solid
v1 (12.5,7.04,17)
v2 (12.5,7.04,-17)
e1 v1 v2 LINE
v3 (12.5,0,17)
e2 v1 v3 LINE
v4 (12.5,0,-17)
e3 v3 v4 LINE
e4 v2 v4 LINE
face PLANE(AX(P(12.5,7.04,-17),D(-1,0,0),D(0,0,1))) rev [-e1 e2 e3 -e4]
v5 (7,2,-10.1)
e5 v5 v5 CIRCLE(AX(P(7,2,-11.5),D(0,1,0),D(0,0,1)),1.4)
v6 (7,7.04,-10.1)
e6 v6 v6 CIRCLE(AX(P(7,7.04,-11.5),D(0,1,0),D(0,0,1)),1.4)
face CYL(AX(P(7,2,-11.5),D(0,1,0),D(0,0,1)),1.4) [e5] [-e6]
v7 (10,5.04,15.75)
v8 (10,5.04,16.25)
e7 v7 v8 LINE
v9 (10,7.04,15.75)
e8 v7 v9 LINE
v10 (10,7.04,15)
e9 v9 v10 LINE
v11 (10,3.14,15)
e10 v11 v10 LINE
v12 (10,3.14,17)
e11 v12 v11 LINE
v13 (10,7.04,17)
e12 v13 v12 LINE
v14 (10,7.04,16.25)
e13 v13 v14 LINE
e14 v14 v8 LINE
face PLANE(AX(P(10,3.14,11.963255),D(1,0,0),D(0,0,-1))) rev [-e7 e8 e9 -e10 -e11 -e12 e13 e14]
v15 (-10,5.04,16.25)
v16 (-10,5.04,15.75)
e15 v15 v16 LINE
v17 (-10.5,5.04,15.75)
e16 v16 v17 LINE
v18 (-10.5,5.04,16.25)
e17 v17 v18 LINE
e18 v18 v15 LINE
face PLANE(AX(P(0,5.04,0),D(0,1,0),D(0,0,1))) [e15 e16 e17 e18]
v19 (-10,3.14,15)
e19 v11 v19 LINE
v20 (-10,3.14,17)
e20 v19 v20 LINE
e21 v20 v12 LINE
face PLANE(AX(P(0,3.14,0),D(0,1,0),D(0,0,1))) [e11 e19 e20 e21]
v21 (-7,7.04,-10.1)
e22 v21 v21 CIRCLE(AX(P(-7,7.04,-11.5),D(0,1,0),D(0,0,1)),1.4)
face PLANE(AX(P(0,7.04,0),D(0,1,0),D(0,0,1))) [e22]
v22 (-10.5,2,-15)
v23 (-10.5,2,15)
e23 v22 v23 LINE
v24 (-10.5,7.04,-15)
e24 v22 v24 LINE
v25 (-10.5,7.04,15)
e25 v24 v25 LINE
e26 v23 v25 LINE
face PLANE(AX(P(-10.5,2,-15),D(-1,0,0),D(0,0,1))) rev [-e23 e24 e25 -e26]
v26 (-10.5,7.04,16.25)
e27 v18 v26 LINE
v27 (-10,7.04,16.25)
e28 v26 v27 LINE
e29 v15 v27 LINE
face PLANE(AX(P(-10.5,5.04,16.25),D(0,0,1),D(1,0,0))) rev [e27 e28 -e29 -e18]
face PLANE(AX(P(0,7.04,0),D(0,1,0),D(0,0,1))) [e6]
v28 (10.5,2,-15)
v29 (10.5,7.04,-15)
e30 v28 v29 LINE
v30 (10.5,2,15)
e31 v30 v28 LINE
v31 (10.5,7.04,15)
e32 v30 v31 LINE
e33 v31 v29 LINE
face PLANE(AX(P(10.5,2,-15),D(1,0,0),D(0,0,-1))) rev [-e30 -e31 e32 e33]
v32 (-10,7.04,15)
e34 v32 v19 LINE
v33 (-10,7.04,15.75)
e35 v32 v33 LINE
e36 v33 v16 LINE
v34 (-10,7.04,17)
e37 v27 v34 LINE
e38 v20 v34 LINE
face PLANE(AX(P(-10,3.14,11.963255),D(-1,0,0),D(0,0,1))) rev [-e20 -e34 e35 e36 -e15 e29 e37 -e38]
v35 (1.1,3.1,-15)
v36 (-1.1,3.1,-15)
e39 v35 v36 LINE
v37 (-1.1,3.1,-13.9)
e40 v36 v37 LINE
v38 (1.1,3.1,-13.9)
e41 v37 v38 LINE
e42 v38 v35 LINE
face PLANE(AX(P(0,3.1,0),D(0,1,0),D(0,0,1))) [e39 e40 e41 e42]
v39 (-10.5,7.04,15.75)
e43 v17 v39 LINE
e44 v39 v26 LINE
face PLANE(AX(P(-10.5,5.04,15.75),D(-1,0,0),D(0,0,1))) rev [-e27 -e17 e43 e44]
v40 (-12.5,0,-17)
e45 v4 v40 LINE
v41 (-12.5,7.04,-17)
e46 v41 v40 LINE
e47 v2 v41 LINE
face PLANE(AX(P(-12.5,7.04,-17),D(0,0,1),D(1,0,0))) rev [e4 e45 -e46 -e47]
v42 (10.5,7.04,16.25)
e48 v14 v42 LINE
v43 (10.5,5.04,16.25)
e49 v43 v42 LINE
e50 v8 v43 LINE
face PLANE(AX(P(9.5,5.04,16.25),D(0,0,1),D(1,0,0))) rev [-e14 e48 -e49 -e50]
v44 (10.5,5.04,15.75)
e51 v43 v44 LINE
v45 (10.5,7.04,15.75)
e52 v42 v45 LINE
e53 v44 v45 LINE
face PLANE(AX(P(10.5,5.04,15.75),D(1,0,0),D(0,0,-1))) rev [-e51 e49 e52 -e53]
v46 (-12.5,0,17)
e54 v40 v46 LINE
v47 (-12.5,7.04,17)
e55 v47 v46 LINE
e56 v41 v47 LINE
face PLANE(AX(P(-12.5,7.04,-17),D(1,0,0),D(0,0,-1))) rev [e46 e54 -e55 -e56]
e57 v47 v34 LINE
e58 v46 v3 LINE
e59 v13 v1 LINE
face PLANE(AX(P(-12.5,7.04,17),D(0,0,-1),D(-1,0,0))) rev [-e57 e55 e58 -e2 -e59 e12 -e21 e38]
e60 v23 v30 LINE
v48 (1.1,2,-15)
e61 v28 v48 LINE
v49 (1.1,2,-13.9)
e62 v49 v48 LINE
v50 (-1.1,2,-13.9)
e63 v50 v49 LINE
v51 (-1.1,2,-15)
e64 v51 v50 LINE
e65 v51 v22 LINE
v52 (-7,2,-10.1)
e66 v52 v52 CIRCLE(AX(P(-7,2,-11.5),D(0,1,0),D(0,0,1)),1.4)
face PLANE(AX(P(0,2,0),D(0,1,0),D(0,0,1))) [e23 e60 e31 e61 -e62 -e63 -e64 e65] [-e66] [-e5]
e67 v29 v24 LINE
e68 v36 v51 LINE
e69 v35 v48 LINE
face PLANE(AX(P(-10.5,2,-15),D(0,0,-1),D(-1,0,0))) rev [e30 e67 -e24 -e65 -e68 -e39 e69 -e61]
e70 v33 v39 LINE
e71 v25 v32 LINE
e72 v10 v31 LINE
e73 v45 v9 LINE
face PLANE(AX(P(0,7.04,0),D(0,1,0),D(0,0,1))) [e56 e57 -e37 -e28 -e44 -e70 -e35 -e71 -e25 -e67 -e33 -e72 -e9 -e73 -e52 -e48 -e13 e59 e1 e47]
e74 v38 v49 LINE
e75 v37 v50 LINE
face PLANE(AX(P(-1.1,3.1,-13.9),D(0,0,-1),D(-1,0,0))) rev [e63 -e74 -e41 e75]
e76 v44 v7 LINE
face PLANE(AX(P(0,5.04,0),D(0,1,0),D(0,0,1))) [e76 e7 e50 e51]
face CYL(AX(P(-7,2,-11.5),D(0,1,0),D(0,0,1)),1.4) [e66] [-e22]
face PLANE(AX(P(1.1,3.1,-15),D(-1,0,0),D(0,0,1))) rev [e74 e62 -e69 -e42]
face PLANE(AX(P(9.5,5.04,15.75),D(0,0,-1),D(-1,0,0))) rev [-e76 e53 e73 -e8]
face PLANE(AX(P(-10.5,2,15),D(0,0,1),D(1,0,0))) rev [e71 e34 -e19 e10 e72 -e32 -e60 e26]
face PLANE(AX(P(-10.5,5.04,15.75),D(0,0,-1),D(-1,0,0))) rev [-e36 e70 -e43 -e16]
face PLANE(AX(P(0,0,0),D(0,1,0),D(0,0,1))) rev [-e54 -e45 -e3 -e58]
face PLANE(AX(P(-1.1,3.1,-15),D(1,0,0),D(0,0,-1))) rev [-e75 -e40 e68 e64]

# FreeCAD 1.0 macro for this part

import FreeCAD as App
import Part
import Sketcher


def add_polygon(sketch, points):
    """Adds a closed chain of lines whose ends are joined by coincident constraints."""
    first, n = sketch.GeometryCount, len(points)
    for a, b in zip(points, points[1:] + points[:1]):
        sketch.addGeometry(Part.LineSegment(App.Vector(*a, 0), App.Vector(*b, 0)), False)
    for i in range(n):
        sketch.addConstraint(Sketcher.Constraint("Coincident", first + i, 2, first + (i + 1) % n, 1))

doc = App.newDocument("Part")
body = doc.addObject("PartDesign::Body", "Body")

sketch1 = doc.addObject("Sketcher::SketchObject", "Sketch")
body.addObject(sketch1)
sketch1.AttachmentSupport = (doc.XZ_Plane, [""])
sketch1.MapMode = "FlatFace"
add_polygon(sketch1, [(-12, -17), (-12, 17), (12, 17), (12, -17)])
sketch1.addConstraint([
    Sketcher.Constraint("Vertical", 0),
    Sketcher.Constraint("Horizontal", 1),
    Sketcher.Constraint("Vertical", 2),
    Sketcher.Constraint("Horizontal", 3),
    Sketcher.Constraint("Symmetric", 0, 2, 2, 2, -1, 1),
    Sketcher.Constraint("DistanceX", 1, 1, 1, 2, 25.0),
    Sketcher.Constraint("DistanceY", 0, 1, 0, 2, 34.0),
])
pad1 = doc.addObject("PartDesign::Pad", "Pad")
body.addObject(pad1)
pad1.Profile = sketch1
pad1.Length = 7.04
pad1.Reversed = True

sketch2 = doc.addObject("Sketcher::SketchObject", "Sketch001")
body.addObject(sketch2)
sketch2.AttachmentSupport = (doc.XZ_Plane, [""])
sketch2.MapMode = "FlatFace"
sketch2.AttachmentOffset = App.Placement(App.Vector(0, 0, -7.04), App.Rotation())
add_polygon(sketch2, [(-10.5, -15), (-10.5, 15), (10.5, 15), (10.5, -15)])
sketch2.addGeometry(Part.Circle(App.Vector(-7, -11.5, 0), App.Vector(0, 0, 1), 1.4), False)
sketch2.addGeometry(Part.Circle(App.Vector(7, -11.5, 0), App.Vector(0, 0, 1), 1.4), False)
sketch2.addConstraint([
    Sketcher.Constraint("Vertical", 0),
    Sketcher.Constraint("Horizontal", 1),
    Sketcher.Constraint("Vertical", 2),
    Sketcher.Constraint("Horizontal", 3),
    Sketcher.Constraint("Equal", 4, 5),
    Sketcher.Constraint("Symmetric", 0, 2, 2, 2, -1, 1),
    Sketcher.Constraint("Symmetric", 4, 3, 5, 3, -2),
    Sketcher.Constraint("Diameter", 4, 2.8),
    Sketcher.Constraint("DistanceX", 1, 1, 1, 2, 21.0),
    Sketcher.Constraint("DistanceY", 0, 1, 0, 2, 30.0),
    Sketcher.Constraint("DistanceX", 4, 3, -1, 1, 7.0),
    Sketcher.Constraint("DistanceY", 4, 3, -1, 1, 11.5),
])
pocket1 = doc.addObject("PartDesign::Pocket", "Pocket")
body.addObject(pocket1)
pocket1.Profile = sketch2
pocket1.Length = 5.04
pocket1.Reversed = True

sketch3 = doc.addObject("Sketcher::SketchObject", "Sketch002")
body.addObject(sketch3)
sketch3.AttachmentSupport = (doc.XZ_Plane, [""])
sketch3.MapMode = "FlatFace"
sketch3.AttachmentOffset = App.Placement(App.Vector(0, 0, -7.04), App.Rotation())
add_polygon(sketch3, [(-10, 12), (-10, 18), (10, 18), (10, 12)])
sketch3.addConstraint([
    Sketcher.Constraint("Vertical", 0),
    Sketcher.Constraint("Horizontal", 1),
    Sketcher.Constraint("Vertical", 2),
    Sketcher.Constraint("Horizontal", 3),
    Sketcher.Constraint("DistanceX", 1, 1, 1, 2, 20.0),
    Sketcher.Constraint("DistanceX", 0, 2, -1, 1, 10.0),
    Sketcher.Constraint("DistanceY", 0, 1, 0, 2, 5.688554),
    Sketcher.Constraint("DistanceY", -1, 1, 0, 2, 17.651809),
])
pocket2 = doc.addObject("PartDesign::Pocket", "Pocket001")
body.addObject(pocket2)
pocket2.Profile = sketch3
pocket2.Length = 3.9
pocket2.Reversed = True

sketch4 = doc.addObject("Sketcher::SketchObject", "Sketch003")
body.addObject(sketch4)
sketch4.AttachmentSupport = (doc.XZ_Plane, [""])
sketch4.MapMode = "FlatFace"
sketch4.AttachmentOffset = App.Placement(App.Vector(0, 0, -2), App.Rotation())
add_polygon(sketch4, [(-1.1, -15), (-1.1, -13.9), (1.1, -13.9), (1.1, -15)])
sketch4.addConstraint([
    Sketcher.Constraint("Vertical", 0),
    Sketcher.Constraint("Horizontal", 1),
    Sketcher.Constraint("Vertical", 2),
    Sketcher.Constraint("Horizontal", 3),
    Sketcher.Constraint("DistanceX", 1, 1, 1, 2, 2.2),
    Sketcher.Constraint("DistanceY", 0, 1, 0, 2, 1.1),
    Sketcher.Constraint("DistanceY", 2, 2, -1, 1, 15.0),
    Sketcher.Constraint("DistanceX", 0, 2, -1, 1, 1.1),
])
pad2 = doc.addObject("PartDesign::Pad", "Pad001")
body.addObject(pad2)
pad2.Profile = sketch4
pad2.Length = 1.1
pad2.Reversed = True

sketch5 = doc.addObject("Sketcher::SketchObject", "Sketch004")
body.addObject(sketch5)
sketch5.AttachmentSupport = (doc.XZ_Plane, [""])
sketch5.MapMode = "FlatFace"
sketch5.AttachmentOffset = App.Placement(App.Vector(0, 0, -7.04), App.Rotation())
add_polygon(sketch5, [(-10.5, 15.8), (-10.5, 16.2), (-9.5, 16.2), (-9.5, 15.8)])
add_polygon(sketch5, [(9.5, 15.8), (9.5, 16.2), (10.5, 16.2), (10.5, 15.8)])
sketch5.addConstraint([
    Sketcher.Constraint("Vertical", 0),
    Sketcher.Constraint("Horizontal", 1),
    Sketcher.Constraint("Vertical", 2),
    Sketcher.Constraint("Horizontal", 3),
    Sketcher.Constraint("Vertical", 4),
    Sketcher.Constraint("Horizontal", 5),
    Sketcher.Constraint("Vertical", 6),
    Sketcher.Constraint("Horizontal", 7),
    Sketcher.Constraint("Symmetric", 1, 2, 4, 2, -2),
    Sketcher.Constraint("Symmetric", 3, 2, 6, 2, -2),
    Sketcher.Constraint("DistanceX", 1, 1, 1, 2, 1.0),
    Sketcher.Constraint("DistanceY", 0, 1, 0, 2, 0.5),
    Sketcher.Constraint("DistanceX", 1, 2, 4, 2, 19.0),
    Sketcher.Constraint("DistanceY", -1, 1, 0, 2, 16.25),
])
pocket3 = doc.addObject("PartDesign::Pocket", "Pocket002")
body.addObject(pocket3)
pocket3.Profile = sketch5
pocket3.Length = 2
pocket3.Reversed = True

doc.recompute()
